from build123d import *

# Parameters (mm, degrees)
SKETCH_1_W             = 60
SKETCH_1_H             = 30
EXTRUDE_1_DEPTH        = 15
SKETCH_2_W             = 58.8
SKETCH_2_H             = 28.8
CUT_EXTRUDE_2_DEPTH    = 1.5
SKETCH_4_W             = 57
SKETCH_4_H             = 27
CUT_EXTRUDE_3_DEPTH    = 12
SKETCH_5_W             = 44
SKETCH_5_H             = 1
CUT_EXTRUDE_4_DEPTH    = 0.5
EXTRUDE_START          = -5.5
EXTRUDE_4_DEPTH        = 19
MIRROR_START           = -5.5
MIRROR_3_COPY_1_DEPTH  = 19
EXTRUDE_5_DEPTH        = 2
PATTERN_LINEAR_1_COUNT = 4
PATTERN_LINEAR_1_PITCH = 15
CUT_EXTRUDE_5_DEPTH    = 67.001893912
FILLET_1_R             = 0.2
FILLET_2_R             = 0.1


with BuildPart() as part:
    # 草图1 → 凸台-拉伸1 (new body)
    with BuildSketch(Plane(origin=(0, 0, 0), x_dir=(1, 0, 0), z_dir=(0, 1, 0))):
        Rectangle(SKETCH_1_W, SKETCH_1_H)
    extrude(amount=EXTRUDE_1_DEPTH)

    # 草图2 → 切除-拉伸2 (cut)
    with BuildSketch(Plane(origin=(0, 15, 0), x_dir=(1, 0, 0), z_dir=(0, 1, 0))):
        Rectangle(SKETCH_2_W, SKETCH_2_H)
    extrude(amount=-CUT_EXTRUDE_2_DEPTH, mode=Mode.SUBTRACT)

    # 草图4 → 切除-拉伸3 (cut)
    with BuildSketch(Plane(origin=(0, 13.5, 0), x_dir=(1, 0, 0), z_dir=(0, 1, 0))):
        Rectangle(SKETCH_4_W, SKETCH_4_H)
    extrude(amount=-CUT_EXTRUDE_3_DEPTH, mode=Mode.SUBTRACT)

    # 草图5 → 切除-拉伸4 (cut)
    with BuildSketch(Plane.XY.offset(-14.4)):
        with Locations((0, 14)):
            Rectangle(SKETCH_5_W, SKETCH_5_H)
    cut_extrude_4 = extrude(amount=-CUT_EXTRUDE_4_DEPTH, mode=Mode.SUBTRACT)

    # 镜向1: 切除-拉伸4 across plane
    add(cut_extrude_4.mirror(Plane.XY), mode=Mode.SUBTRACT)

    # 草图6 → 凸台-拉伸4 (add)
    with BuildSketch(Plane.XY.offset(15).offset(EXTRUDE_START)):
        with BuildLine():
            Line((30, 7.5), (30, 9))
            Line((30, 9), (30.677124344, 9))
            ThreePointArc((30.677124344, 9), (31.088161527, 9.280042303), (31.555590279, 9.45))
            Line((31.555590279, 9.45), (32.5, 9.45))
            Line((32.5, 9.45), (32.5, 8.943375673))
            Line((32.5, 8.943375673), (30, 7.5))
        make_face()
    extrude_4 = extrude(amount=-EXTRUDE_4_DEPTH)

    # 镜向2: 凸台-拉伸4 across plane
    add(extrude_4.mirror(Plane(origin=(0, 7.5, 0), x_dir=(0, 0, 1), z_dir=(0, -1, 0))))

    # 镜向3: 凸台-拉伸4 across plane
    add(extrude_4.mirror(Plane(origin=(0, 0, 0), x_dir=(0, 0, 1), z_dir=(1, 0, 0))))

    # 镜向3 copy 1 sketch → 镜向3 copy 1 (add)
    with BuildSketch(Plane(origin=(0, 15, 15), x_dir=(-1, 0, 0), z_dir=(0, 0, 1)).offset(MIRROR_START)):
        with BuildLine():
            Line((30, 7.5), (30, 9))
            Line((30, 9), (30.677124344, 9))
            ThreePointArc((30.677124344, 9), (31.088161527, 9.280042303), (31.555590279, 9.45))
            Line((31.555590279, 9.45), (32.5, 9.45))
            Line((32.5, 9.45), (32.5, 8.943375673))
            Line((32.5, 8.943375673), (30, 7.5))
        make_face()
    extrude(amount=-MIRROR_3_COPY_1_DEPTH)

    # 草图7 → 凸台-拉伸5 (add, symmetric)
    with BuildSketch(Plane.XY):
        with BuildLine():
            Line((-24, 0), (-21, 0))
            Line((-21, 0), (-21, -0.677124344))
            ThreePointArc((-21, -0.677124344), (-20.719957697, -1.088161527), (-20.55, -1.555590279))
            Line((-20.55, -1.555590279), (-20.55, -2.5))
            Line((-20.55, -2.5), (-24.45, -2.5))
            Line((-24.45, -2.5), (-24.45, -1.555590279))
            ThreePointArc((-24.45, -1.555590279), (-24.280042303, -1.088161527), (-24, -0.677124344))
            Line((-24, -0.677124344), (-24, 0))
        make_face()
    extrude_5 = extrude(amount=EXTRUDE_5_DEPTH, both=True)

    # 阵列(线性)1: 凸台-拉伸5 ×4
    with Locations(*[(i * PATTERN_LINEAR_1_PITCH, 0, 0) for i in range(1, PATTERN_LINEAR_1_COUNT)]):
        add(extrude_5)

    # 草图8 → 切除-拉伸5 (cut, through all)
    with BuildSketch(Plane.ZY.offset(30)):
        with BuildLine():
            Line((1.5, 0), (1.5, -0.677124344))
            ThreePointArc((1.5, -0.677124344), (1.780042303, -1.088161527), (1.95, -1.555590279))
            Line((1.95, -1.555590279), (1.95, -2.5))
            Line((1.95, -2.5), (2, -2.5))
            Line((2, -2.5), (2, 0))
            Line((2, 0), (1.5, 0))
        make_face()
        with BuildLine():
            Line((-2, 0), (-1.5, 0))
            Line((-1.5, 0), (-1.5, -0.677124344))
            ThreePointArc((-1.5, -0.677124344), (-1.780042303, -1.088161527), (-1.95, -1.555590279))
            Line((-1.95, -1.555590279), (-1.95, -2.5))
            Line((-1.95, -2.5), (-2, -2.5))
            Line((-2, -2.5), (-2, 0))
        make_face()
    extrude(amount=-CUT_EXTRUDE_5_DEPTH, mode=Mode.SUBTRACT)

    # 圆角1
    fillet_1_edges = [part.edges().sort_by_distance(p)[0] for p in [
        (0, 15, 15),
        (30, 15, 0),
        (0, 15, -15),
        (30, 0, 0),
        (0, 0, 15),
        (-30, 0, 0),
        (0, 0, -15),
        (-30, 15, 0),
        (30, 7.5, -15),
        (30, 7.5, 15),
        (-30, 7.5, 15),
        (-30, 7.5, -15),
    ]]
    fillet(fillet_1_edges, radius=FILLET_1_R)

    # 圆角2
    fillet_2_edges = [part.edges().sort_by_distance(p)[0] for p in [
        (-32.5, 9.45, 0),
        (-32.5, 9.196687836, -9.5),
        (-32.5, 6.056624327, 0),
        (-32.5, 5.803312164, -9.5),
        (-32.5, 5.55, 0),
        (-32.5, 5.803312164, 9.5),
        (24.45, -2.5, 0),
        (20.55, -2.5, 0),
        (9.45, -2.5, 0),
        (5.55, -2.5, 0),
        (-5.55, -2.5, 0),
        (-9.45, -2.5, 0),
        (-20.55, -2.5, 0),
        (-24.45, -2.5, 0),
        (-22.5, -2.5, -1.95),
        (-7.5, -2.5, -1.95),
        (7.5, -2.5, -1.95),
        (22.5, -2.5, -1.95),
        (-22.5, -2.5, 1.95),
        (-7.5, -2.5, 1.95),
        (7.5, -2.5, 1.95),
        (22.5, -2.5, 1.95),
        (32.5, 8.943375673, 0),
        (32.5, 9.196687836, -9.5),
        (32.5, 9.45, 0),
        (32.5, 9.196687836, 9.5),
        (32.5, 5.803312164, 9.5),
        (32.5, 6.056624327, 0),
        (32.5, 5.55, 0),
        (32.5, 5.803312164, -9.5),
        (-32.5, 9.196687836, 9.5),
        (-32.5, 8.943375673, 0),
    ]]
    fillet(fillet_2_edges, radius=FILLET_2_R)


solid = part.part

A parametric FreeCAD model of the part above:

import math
import FreeCAD as App
import Part
import Sketcher

V = App.Vector
Q = App.Units.Quantity


def edges_at(feature, points):
    """Names of the edges that pass closest to the given points."""
    edges = feature.Shape.Edges
    near = lambda p: min(range(len(edges)), key=lambda i: edges[i].distToShape(Part.Vertex(*p))[0])
    return sorted({f"Edge{near(p) + 1}" for p in points})


def add_polygon(sketch, points):
    """Adds a closed chain of lines whose ends are joined by coincident constraints."""
    first, n = sketch.GeometryCount, len(points)
    for a, b in zip(points, points[1:] + points[:1]):
        sketch.addGeometry(Part.LineSegment(App.Vector(*a, 0), App.Vector(*b, 0)), False)
    for i in range(n):
        sketch.addConstraint(Sketcher.Constraint("Coincident", first + i, 2, first + (i + 1) % n, 1))

doc = App.newDocument("Part")
body = doc.addObject("PartDesign::Body", "Body")

# Sketch on XZ plane
sketch1 = doc.addObject("Sketcher::SketchObject", "Sketch")
body.addObject(sketch1)
sketch1.AttachmentSupport = (doc.XZ_Plane, [""])
sketch1.MapMode = "FlatFace"
add_polygon(sketch1, [(-30, -15), (-30, 15), (30, 15), (30, -15)])  # lines 0-3
sketch1.addConstraint([
    Sketcher.Constraint("Vertical", 0),
    Sketcher.Constraint("Horizontal", 1),
    Sketcher.Constraint("Vertical", 2),
    Sketcher.Constraint("Horizontal", 3),
    Sketcher.Constraint("Symmetric", 0, 2, 2, 2, -1, 1),
    Sketcher.Constraint("DistanceX", 1, 1, 1, 2, Q("60 mm")),
    Sketcher.Constraint("DistanceY", 0, 1, 0, 2, Q("30 mm")),
])
pad1 = doc.addObject("PartDesign::Pad", "Pad")
body.addObject(pad1)
pad1.Profile = sketch1
pad1.Length = 15
pad1.Reversed = True

# Sketch on XZ plane
sketch2 = doc.addObject("Sketcher::SketchObject", "Sketch001")
body.addObject(sketch2)
sketch2.AttachmentSupport = (doc.XZ_Plane, [""])
sketch2.MapMode = "FlatFace"
sketch2.AttachmentOffset = App.Placement(V(0, 0, -15), App.Rotation())
add_polygon(sketch2, [(-29, -14), (-29, 14), (29, 14), (29, -14)])  # lines 0-3
sketch2.addConstraint([
    Sketcher.Constraint("Vertical", 0),
    Sketcher.Constraint("Horizontal", 1),
    Sketcher.Constraint("Vertical", 2),
    Sketcher.Constraint("Horizontal", 3),
    Sketcher.Constraint("Symmetric", 0, 2, 2, 2, -1, 1),
    Sketcher.Constraint("DistanceX", 1, 1, 1, 2, Q("58.8 mm")),
    Sketcher.Constraint("DistanceY", 0, 1, 0, 2, Q("28.8 mm")),
])
pocket1 = doc.addObject("PartDesign::Pocket", "Pocket")
body.addObject(pocket1)
pocket1.Profile = sketch2
pocket1.Length = 1.5
pocket1.Reversed = True

# Sketch on XZ plane
sketch3 = doc.addObject("Sketcher::SketchObject", "Sketch002")
body.addObject(sketch3)
sketch3.AttachmentSupport = (doc.XZ_Plane, [""])
sketch3.MapMode = "FlatFace"
sketch3.AttachmentOffset = App.Placement(V(0, 0, -13.5), App.Rotation())
add_polygon(sketch3, [(-28, -14), (-28, 14), (28, 14), (28, -14)])  # lines 0-3
sketch3.addConstraint([
    Sketcher.Constraint("Vertical", 0),
    Sketcher.Constraint("Horizontal", 1),
    Sketcher.Constraint("Vertical", 2),
    Sketcher.Constraint("Horizontal", 3),
    Sketcher.Constraint("Symmetric", 0, 2, 2, 2, -1, 1),
    Sketcher.Constraint("DistanceX", 1, 1, 1, 2, Q("57 mm")),
    Sketcher.Constraint("DistanceY", 0, 1, 0, 2, Q("27 mm")),
])
pocket2 = doc.addObject("PartDesign::Pocket", "Pocket001")
body.addObject(pocket2)
pocket2.Profile = sketch3
pocket2.Length = 12
pocket2.Reversed = True

# Sketch on XY plane
sketch4 = doc.addObject("Sketcher::SketchObject", "Sketch003")
body.addObject(sketch4)
sketch4.AttachmentSupport = (doc.XY_Plane, [""])
sketch4.MapMode = "FlatFace"
sketch4.AttachmentOffset = App.Placement(V(0, 0, -14.4), App.Rotation())
add_polygon(sketch4, [(-22, 14.5), (-22, 13.5), (22, 13.5), (22, 14.5)])  # lines 0-3
sketch4.addConstraint([
    Sketcher.Constraint("Vertical", 0),
    Sketcher.Constraint("Horizontal", 1),
    Sketcher.Constraint("Vertical", 2),
    Sketcher.Constraint("Horizontal", 3),
    Sketcher.Constraint("DistanceX", 1, 1, 1, 2, Q("44 mm")),
    Sketcher.Constraint("DistanceY", 0, 2, 0, 1, Q("1 mm")),
    Sketcher.Constraint("DistanceX", 0, 2, -1, 1, Q("22 mm")),
    Sketcher.Constraint("DistanceY", -1, 1, 0, 2, Q("13.5 mm")),
])
pocket3 = doc.addObject("PartDesign::Pocket", "Pocket002")
body.addObject(pocket3)
pocket3.Profile = sketch4
pocket3.Length = 0.5
doc.recompute()

mirrored = doc.addObject("PartDesign::Mirrored", "Mirrored")
body.addObject(mirrored)
mirrored.Originals = [pocket3]
mirrored.MirrorPlane = (doc.XY_Plane, [""])
body.Tip = mirrored

# Sketch on XY plane
sketch5 = doc.addObject("Sketcher::SketchObject", "Sketch004")
body.addObject(sketch5)
sketch5.AttachmentSupport = (doc.XY_Plane, [""])
sketch5.MapMode = "FlatFace"
sketch5.AttachmentOffset = App.Placement(V(0, 0, 9.5), App.Rotation())
sketch5.addGeometry([
    Part.LineSegment(V(30, 9, 0), V(30, 7.5, 0)),  # 0
    Part.LineSegment(V(30, 7.5, 0), V(32.5, 8.9, 0)),  # 1
    Part.LineSegment(V(32.5, 8.9, 0), V(32.5, 9.4, 0)),  # 2
    Part.LineSegment(V(32.5, 9.4, 0), V(31.6, 9.4, 0)),  # 3
    Part.ArcOfCircle(Part.Circle(V(32, 7.5, 0), V(0, 0, 1), 2), math.radians(103), math.radians(131)),  # 4
    Part.LineSegment(V(30.7, 9, 0), V(30, 9, 0)),  # 5
], False)
sketch5.addConstraint([
    Sketcher.Constraint("Coincident", 0, 2, 1, 1),
    Sketcher.Constraint("Coincident", 1, 2, 2, 1),
    Sketcher.Constraint("Coincident", 2, 2, 3, 1),
    Sketcher.Constraint("Coincident", 3, 2, 4, 1),
    Sketcher.Constraint("Coincident", 4, 2, 5, 1),
    Sketcher.Constraint("Coincident", 5, 2, 0, 1),
    Sketcher.Constraint("Vertical", 0),
    Sketcher.Constraint("Vertical", 2),
    Sketcher.Constraint("Horizontal", 3),
    Sketcher.Constraint("Horizontal", 5),
    Sketcher.Constraint("Horizontal", 4, 3, 0, 2),
    Sketcher.Constraint("Radius", 4, Q("2 mm")),
    Sketcher.Constraint("Angle", 1, Q("30 deg")),
    Sketcher.Constraint("DistanceY", 0, 2, 0, 1, Q("1.5 mm")),
    Sketcher.Constraint("DistanceX", -1, 1, 4, 3, Q("32 mm")),
    Sketcher.Constraint("DistanceX", -1, 1, 0, 2, Q("30 mm")),
    Sketcher.Constraint("DistanceY", -1, 1, 4, 2, Q("9 mm")),
    Sketcher.Constraint("DistanceX", -1, 1, 1, 2, Q("32.5 mm")),
    Sketcher.Constraint("DistanceY", -1, 1, 2, 2, Q("9.45 mm")),
])
pad2 = doc.addObject("PartDesign::Pad", "Pad001")
body.addObject(pad2)
pad2.Profile = sketch5
pad2.Length = 19
pad2.Reversed = True
doc.recompute()

datumplane = doc.addObject("PartDesign::Plane", "DatumPlane")
body.addObject(datumplane)
datumplane.AttachmentSupport = (doc.XZ_Plane, [""])
datumplane.MapMode = "FlatFace"
datumplane.AttachmentOffset = App.Placement(V(0, 0, -7.5), App.Rotation())
mirrored2 = doc.addObject("PartDesign::Mirrored", "Mirrored001")
body.addObject(mirrored2)
mirrored2.Originals = [pad2]
mirrored2.MirrorPlane = (datumplane, [""])
body.Tip = mirrored2
doc.recompute()

mirrored3 = doc.addObject("PartDesign::Mirrored", "Mirrored002")
body.addObject(mirrored3)
mirrored3.Originals = [pad2]
mirrored3.MirrorPlane = (doc.YZ_Plane, [""])
body.Tip = mirrored3

# Sketch on XY plane
sketch6 = doc.addObject("Sketcher::SketchObject", "Sketch005")
body.addObject(sketch6)
sketch6.AttachmentSupport = (doc.XY_Plane, [""])
sketch6.MapMode = "FlatFace"
sketch6.AttachmentOffset = App.Placement(V(0, 0, 9.5), App.Rotation())
sketch6.addGeometry([
    Part.LineSegment(V(-30, 6, 0), V(-30, 7.5, 0)),  # 0
    Part.LineSegment(V(-30, 7.5, 0), V(-32.5, 6.1, 0)),  # 1
    Part.LineSegment(V(-32.5, 6.1, 0), V(-32.5, 5.5, 0)),  # 2
    Part.LineSegment(V(-32.5, 5.5, 0), V(-31.6, 5.5, 0)),  # 3
    Part.ArcOfCircle(Part.Circle(V(-32, 7.5, 0), V(0, 0, 1), 2), math.radians(-77), math.radians(-49)),  # 4
    Part.LineSegment(V(-30.7, 6, 0), V(-30, 6, 0)),  # 5
], False)
sketch6.addConstraint([
    Sketcher.Constraint("Coincident", 0, 2, 1, 1),
    Sketcher.Constraint("Coincident", 1, 2, 2, 1),
    Sketcher.Constraint("Coincident", 2, 2, 3, 1),
    Sketcher.Constraint("Coincident", 3, 2, 4, 1),
    Sketcher.Constraint("Coincident", 4, 2, 5, 1),
    Sketcher.Constraint("Coincident", 5, 2, 0, 1),
    Sketcher.Constraint("Vertical", 0),
    Sketcher.Constraint("Vertical", 2),
    Sketcher.Constraint("Horizontal", 3),
    Sketcher.Constraint("Horizontal", 5),
    Sketcher.Constraint("Horizontal", 4, 3, 0, 2),
    Sketcher.Constraint("Radius", 4, Q("2 mm")),
    Sketcher.Constraint("Angle", 1, Q("-150 deg")),
    Sketcher.Constraint("DistanceY", 0, 1, 0, 2, Q("1.5 mm")),
    Sketcher.Constraint("DistanceX", 4, 3, -1, 1, Q("32 mm")),
    Sketcher.Constraint("DistanceX", 0, 2, -1, 1, Q("30 mm")),
    Sketcher.Constraint("DistanceY", -1, 1, 4, 2, Q("6 mm")),
    Sketcher.Constraint("DistanceX", 1, 2, -1, 1, Q("32.5 mm")),
    Sketcher.Constraint("DistanceY", -1, 1, 2, 2, Q("5.55 mm")),
])
pad3 = doc.addObject("PartDesign::Pad", "Pad002")
body.addObject(pad3)
pad3.Profile = sketch6
pad3.Length = 19
pad3.Reversed = True

# Sketch on XY plane
sketch7 = doc.addObject("Sketcher::SketchObject", "Sketch006")
body.addObject(sketch7)
sketch7.AttachmentSupport = (doc.XY_Plane, [""])
sketch7.MapMode = "FlatFace"
sketch7.addGeometry([
    Part.LineSegment(V(-21, 0, 0), V(-24, 0, 0)),  # 0
    Part.LineSegment(V(-24, 0, 0), V(-24, -0.7, 0)),  # 1
    Part.ArcOfCircle(Part.Circle(V(-22.5, -2, 0), V(0, 0, 1), 2), math.radians(139), math.radians(167)),  # 2
    Part.LineSegment(V(-24.4, -1.6, 0), V(-24.4, -2.5, 0)),  # 3
    Part.LineSegment(V(-24.4, -2.5, 0), V(-20.6, -2.5, 0)),  # 4
    Part.LineSegment(V(-20.6, -2.5, 0), V(-20.6, -1.6, 0)),  # 5
    Part.ArcOfCircle(Part.Circle(V(-22.5, -2, 0), V(0, 0, 1), 2), math.radians(13), math.radians(41)),  # 6
    Part.LineSegment(V(-21, -0.7, 0), V(-21, 0, 0)),  # 7
], False)
sketch7.addConstraint([
    Sketcher.Constraint("Coincident", 0, 2, 1, 1),
    Sketcher.Constraint("Coincident", 1, 2, 2, 1),
    Sketcher.Constraint("Coincident", 2, 2, 3, 1),
    Sketcher.Constraint("Coincident", 3, 2, 4, 1),
    Sketcher.Constraint("Coincident", 4, 2, 5, 1),
    Sketcher.Constraint("Coincident", 5, 2, 6, 1),
    Sketcher.Constraint("Coincident", 6, 2, 7, 1),
    Sketcher.Constraint("Coincident", 7, 2, 0, 1),
    Sketcher.Constraint("Horizontal", 0),
    Sketcher.Constraint("Vertical", 1),
    Sketcher.Constraint("Vertical", 3),
    Sketcher.Constraint("Horizontal", 4),
    Sketcher.Constraint("Vertical", 5),
    Sketcher.Constraint("Vertical", 7),
    Sketcher.Constraint("Coincident", 6, 3, 2, 3),
    Sketcher.Constraint("Equal", 2, 6),
    Sketcher.Constraint("PointOnObject", 0, 2, -1),
    Sketcher.Constraint("Horizontal", 2, 2, 5, 2),
    Sketcher.Constraint("Horizontal", 1, 2, 6, 2),
    Sketcher.Constraint("Radius", 2, Q("2 mm")),
    Sketcher.Constraint("DistanceX", 0, 2, 0, 1, Q("3 mm")),
    Sketcher.Constraint("DistanceX", 4, 1, 4, 2, Q("3.9 mm")),
    Sketcher.Constraint("DistanceY", 2, 3, -1, 1, Q("2 mm")),
    Sketcher.Constraint("DistanceX", 0, 2, -1, 1, Q("24 mm")),
    Sketcher.Constraint("DistanceY", 3, 2, -1, 1, Q("2.5 mm")),
])
pad4 = doc.addObject("PartDesign::Pad", "Pad003")
body.addObject(pad4)
pad4.Profile = sketch7
pad4.Length = 4
pad4.Midplane = True
doc.recompute()

linearpattern = doc.addObject("PartDesign::LinearPattern", "LinearPattern")
body.addObject(linearpattern)
linearpattern.Originals = [pad4]
linearpattern.Direction = (doc.X_Axis, [""])
linearpattern.Mode = "offset"
linearpattern.Offset = 15
linearpattern.Occurrences = 4
body.Tip = linearpattern

# Sketch on YZ plane
sketch8 = doc.addObject("Sketcher::SketchObject", "Sketch007")
body.addObject(sketch8)
sketch8.AttachmentSupport = (doc.YZ_Plane, [""])
sketch8.MapMode = "FlatFace"
sketch8.AttachmentOffset = App.Placement(V(0, 0, -30), App.Rotation())
sketch8.addGeometry([
    Part.LineSegment(V(0, 1.5, 0), V(-0.68, 1.5, 0)),  # 0
    Part.ArcOfCircle(Part.Circle(V(-2, 0, 0), V(0, 0, 1), 2), math.radians(49), math.radians(77)),  # 1
    Part.LineSegment(V(-1.56, 1.95, 0), V(-2.5, 1.95, 0)),  # 2
    Part.LineSegment(V(-2.5, 1.95, 0), V(-2.5, 2, 0)),  # 3
    Part.LineSegment(V(-2.5, 2, 0), V(0, 2, 0)),  # 4
    Part.LineSegment(V(0, 2, 0), V(0, 1.5, 0)),  # 5
    Part.LineSegment(V(0, -1.5, 0), V(0, -2, 0)),  # 6
    Part.LineSegment(V(0, -2, 0), V(-2.5, -2, 0)),  # 7
    Part.LineSegment(V(-2.5, -2, 0), V(-2.5, -1.95, 0)),  # 8
    Part.LineSegment(V(-2.5, -1.95, 0), V(-1.56, -1.95, 0)),  # 9
    Part.ArcOfCircle(Part.Circle(V(-2, 0, 0), V(0, 0, 1), 2), math.radians(-77), math.radians(-49)),  # 10
    Part.LineSegment(V(-0.68, -1.5, 0), V(0, -1.5, 0)),  # 11
], False)
sketch8.addConstraint([
    Sketcher.Constraint("Coincident", 0, 2, 1, 1),
    Sketcher.Constraint("Coincident", 1, 2, 2, 1),
    Sketcher.Constraint("Coincident", 2, 2, 3, 1),
    Sketcher.Constraint("Coincident", 3, 2, 4, 1),
    Sketcher.Constraint("Coincident", 4, 2, 5, 1),
    Sketcher.Constraint("Coincident", 5, 2, 0, 1),
    Sketcher.Constraint("Coincident", 6, 2, 7, 1),
    Sketcher.Constraint("Coincident", 7, 2, 8, 1),
    Sketcher.Constraint("Coincident", 8, 2, 9, 1),
    Sketcher.Constraint("Coincident", 9, 2, 10, 1),
    Sketcher.Constraint("Coincident", 10, 2, 11, 1),
    Sketcher.Constraint("Coincident", 11, 2, 6, 1),
    Sketcher.Constraint("Horizontal", 0),
    Sketcher.Constraint("Horizontal", 2),
    Sketcher.Constraint("Vertical", 3),
    Sketcher.Constraint("Horizontal", 4),
    Sketcher.Constraint("Vertical", 5),
    Sketcher.Constraint("Vertical", 6),
    Sketcher.Constraint("Horizontal", 7),
    Sketcher.Constraint("Vertical", 8),
    Sketcher.Constraint("Horizontal", 9),
    Sketcher.Constraint("Horizontal", 11),
    Sketcher.Constraint("Coincident", 10, 3, 1, 3),
    Sketcher.Constraint("Equal", 1, 10),
    Sketcher.Constraint("Symmetric", 4, 2, 6, 2, -1, 1),
    Sketcher.Constraint("Symmetric", 2, 2, 8, 2, -1),
    Sketcher.Constraint("Symmetric", 0, 2, 10, 2, -1),
    Sketcher.Constraint("PointOnObject", 4, 2, -2),
    Sketcher.Constraint("Radius", 1, Q("2 mm")),
    Sketcher.Constraint("DistanceX", 4, 1, 4, 2, Q("2.5 mm")),
    Sketcher.Constraint("DistanceY", 5, 2, 5, 1, Q("0.5 mm")),
    Sketcher.Constraint("DistanceX", 1, 3, -1, 1, Q("2 mm")),
    Sketcher.Constraint("DistanceY", -1, 1, 3, 2, Q("2 mm")),
    Sketcher.Constraint("DistanceY", 3, 1, 3, 2, Q("0.05 mm")),
])
pocket4 = doc.addObject("PartDesign::Pocket", "Pocket003")
body.addObject(pocket4)
pocket4.Profile = sketch8
pocket4.Type = "ThroughAll"
pocket4.Reversed = True
doc.recompute()

fillet = doc.addObject("PartDesign::Fillet", "Fillet")
body.addObject(fillet)
fillet.Base = (pocket4, edges_at(pocket4, [
    (0, 15, 15),
    (30, 15, 0),
    (0, 15, -15),
    (30, 0, 0),
    (0, 0, 15),
    (-30, 0, 0),
    (0, 0, -15),
    (-30, 15, 0),
    (30, 7.5, -15),
    (30, 7.5, 15),
    (-30, 7.5, 15),
    (-30, 7.5, -15),
]))
fillet.Radius = 0.2
doc.recompute()

fillet2 = doc.addObject("PartDesign::Fillet", "Fillet001")
body.addObject(fillet2)
fillet2.Base = (fillet, edges_at(fillet, [
    (-32.5, 9.45, 0),
    (-32.5, 9.197, -9.5),
    (-32.5, 6.057, 0),
    (-32.5, 5.803, -9.5),
    (-32.5, 5.55, 0),
    (-32.5, 5.803, 9.5),
    (24.45, -2.5, 0),
    (20.55, -2.5, 0),
    (9.45, -2.5, 0),
    (5.55, -2.5, 0),
    (-5.55, -2.5, 0),
    (-9.45, -2.5, 0),
    (-20.55, -2.5, 0),
    (-24.45, -2.5, 0),
    (-22.5, -2.5, -1.95),
    (-7.5, -2.5, -1.95),
    (7.5, -2.5, -1.95),
    (22.5, -2.5, -1.95),
    (-22.5, -2.5, 1.95),
    (-7.5, -2.5, 1.95),
    (7.5, -2.5, 1.95),
    (22.5, -2.5, 1.95),
    (32.5, 8.943, 0),
    (32.5, 9.197, -9.5),
    (32.5, 9.45, 0),
    (32.5, 9.197, 9.5),
    (32.5, 5.803, 9.5),
    (32.5, 6.057, 0),
    (32.5, 5.55, 0),
    (32.5, 5.803, -9.5),
    (-32.5, 9.197, 9.5),
    (-32.5, 8.943, 0),
]))
fillet2.Radius = 0.1

doc.recompute()
